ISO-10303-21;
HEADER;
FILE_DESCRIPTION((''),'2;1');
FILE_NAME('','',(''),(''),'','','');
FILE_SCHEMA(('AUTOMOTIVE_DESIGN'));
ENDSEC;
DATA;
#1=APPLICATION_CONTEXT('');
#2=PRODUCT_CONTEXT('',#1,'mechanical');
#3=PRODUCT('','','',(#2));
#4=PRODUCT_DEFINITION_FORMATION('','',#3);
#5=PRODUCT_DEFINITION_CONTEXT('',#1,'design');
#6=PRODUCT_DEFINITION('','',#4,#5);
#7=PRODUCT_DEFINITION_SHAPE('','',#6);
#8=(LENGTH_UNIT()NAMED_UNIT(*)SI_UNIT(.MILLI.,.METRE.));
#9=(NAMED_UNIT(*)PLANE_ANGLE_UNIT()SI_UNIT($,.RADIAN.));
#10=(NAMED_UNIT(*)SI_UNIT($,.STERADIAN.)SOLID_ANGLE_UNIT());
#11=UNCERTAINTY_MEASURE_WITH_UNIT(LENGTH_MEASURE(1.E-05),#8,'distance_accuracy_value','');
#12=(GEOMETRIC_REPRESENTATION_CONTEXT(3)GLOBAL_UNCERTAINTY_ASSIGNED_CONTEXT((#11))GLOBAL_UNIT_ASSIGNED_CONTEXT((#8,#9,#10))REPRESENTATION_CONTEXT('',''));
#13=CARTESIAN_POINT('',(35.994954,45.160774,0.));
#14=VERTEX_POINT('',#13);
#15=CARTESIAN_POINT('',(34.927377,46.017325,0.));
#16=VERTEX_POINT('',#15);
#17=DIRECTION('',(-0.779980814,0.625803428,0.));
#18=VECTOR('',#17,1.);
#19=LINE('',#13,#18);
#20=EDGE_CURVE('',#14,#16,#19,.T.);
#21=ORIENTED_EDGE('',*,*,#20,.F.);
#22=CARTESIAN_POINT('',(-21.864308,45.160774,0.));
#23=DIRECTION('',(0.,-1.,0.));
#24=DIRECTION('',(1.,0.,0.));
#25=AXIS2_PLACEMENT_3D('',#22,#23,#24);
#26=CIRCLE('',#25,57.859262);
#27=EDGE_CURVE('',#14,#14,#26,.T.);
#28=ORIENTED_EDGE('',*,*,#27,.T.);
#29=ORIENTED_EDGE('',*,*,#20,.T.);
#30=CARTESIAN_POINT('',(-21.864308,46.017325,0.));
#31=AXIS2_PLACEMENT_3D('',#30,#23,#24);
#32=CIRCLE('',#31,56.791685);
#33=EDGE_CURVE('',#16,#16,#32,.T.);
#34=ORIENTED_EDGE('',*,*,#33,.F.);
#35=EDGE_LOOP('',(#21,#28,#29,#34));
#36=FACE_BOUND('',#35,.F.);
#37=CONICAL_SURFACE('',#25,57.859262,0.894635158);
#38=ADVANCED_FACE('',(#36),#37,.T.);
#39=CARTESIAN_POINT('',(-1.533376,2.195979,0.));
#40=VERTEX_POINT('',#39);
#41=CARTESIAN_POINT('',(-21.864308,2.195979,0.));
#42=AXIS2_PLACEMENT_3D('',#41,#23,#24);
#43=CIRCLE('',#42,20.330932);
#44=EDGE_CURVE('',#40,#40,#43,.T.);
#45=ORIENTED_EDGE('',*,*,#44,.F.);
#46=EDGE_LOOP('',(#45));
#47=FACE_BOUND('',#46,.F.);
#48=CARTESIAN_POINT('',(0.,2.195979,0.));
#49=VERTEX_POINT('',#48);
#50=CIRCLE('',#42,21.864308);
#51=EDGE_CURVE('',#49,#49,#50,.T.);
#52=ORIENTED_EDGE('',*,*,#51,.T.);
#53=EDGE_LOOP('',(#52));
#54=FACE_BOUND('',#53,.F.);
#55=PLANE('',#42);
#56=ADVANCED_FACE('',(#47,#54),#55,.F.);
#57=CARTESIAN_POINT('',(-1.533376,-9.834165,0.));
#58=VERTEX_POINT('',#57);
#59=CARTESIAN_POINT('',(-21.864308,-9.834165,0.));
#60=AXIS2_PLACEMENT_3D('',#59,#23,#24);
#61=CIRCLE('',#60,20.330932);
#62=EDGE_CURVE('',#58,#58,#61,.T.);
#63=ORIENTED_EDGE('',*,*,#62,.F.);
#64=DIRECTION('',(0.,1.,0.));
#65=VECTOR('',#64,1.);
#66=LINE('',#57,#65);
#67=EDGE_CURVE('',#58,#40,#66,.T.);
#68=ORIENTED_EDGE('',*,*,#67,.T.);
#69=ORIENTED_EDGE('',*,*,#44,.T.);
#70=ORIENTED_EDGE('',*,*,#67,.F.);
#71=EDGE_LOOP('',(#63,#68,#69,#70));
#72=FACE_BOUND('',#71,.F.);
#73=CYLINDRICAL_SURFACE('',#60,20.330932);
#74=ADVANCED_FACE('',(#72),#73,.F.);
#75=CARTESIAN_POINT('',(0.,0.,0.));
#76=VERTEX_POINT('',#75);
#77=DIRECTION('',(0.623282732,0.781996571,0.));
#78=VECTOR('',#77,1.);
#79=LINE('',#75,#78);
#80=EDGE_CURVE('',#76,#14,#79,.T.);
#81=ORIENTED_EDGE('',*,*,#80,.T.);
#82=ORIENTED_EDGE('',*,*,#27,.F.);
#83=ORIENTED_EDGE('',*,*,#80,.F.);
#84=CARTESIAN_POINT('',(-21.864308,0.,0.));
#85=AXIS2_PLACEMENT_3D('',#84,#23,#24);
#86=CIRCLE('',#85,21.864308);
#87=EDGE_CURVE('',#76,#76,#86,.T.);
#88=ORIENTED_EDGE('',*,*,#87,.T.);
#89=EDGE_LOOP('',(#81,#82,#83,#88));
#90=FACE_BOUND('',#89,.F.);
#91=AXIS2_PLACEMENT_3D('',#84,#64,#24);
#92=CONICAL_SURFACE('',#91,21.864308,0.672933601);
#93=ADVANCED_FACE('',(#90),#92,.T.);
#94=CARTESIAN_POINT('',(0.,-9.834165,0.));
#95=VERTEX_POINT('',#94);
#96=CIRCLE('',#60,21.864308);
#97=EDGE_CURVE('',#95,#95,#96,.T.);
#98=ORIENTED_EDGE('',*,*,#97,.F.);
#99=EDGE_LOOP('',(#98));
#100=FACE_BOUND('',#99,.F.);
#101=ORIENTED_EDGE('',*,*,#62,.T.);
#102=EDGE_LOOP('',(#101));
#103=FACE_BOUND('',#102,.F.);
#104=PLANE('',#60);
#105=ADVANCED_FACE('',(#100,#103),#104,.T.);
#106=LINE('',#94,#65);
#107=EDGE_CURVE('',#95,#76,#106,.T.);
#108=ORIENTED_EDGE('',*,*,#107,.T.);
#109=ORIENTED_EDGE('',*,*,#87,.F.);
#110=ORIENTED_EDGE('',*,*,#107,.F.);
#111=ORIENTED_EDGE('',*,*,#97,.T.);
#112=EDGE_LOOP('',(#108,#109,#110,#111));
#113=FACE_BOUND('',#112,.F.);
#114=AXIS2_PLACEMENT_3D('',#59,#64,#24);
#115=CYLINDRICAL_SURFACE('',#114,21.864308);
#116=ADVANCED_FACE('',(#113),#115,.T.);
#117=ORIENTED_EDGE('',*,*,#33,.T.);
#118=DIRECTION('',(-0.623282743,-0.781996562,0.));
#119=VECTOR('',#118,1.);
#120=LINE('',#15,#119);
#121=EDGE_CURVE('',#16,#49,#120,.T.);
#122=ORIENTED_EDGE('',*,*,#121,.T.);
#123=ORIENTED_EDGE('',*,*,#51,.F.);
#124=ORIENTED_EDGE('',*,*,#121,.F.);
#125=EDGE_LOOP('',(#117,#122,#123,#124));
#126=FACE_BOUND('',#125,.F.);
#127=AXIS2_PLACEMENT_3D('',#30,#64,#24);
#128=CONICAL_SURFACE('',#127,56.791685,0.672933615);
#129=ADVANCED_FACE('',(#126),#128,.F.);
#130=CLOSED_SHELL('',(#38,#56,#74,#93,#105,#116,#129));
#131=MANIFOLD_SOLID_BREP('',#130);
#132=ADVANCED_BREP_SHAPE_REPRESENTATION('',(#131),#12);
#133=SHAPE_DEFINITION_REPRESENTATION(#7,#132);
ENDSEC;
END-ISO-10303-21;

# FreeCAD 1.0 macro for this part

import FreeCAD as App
import Part
import Sketcher
from FreeCAD import Vector

doc = App.newDocument("Part")
params = doc.addObject("Spreadsheet::Sheet", "Params")
for row, (alias, value) in enumerate([
    ("revolution_angle", "360 deg"),
    ("pocket1_length", "3 in"),
], start=1):
    params.set(f"A{row}", alias)
    params.set(f"B{row}", "=" + value)
    params.setAlias(f"B{row}", alias)

body = doc.addObject("PartDesign::Body", "Body")

# Sketch on XY plane
sketch1 = body.newObject("Sketcher::SketchObject", "Sketch")
sketch1.AttachmentSupport = (doc.getObject("XY_Plane"), [""])
sketch1.MapMode = "FlatFace"
sketch1.addGeometry(Part.LineSegment(Vector(34.9, 46, 0), Vector(0, 2.2, 0)), False)
sketch1.addGeometry(Part.LineSegment(Vector(0, 2.2, 0), Vector(-21.9, 2.2, 0)), False)
sketch1.addGeometry(Part.LineSegment(Vector(-21.9, 2.2, 0), Vector(-21.9, -9.8, 0)), False)
sketch1.addGeometry(Part.LineSegment(Vector(-21.9, -9.8, 0), Vector(0, -9.8, 0)), False)
sketch1.addGeometry(Part.LineSegment(Vector(0, -9.8, 0), Vector(0, 0, 0)), False)
sketch1.addGeometry(Part.LineSegment(Vector(0, 0, 0), Vector(36, 45.2, 0)), False)
sketch1.addGeometry(Part.LineSegment(Vector(36, 45.2, 0), Vector(34.9, 46, 0)), False)
sketch1.addGeometry(Part.LineSegment(Vector(-21.9, 46, 0), Vector(-21.9, -9.8, 0)), True)  # axis
sketch1.addConstraint(Sketcher.Constraint("Coincident", 0, 2, 1, 1))
sketch1.addConstraint(Sketcher.Constraint("Coincident", 1, 2, 2, 1))
sketch1.addConstraint(Sketcher.Constraint("Coincident", 2, 2, 3, 1))
sketch1.addConstraint(Sketcher.Constraint("Coincident", 3, 2, 4, 1))
sketch1.addConstraint(Sketcher.Constraint("Coincident", 4, 2, 5, 1))
sketch1.addConstraint(Sketcher.Constraint("Coincident", 5, 2, 6, 1))
sketch1.addConstraint(Sketcher.Constraint("Coincident", 6, 2, 0, 1))
sketch1.addConstraint(Sketcher.Constraint("Horizontal", 1))
sketch1.addConstraint(Sketcher.Constraint("Vertical", 2))
sketch1.addConstraint(Sketcher.Constraint("Horizontal", 3))
sketch1.addConstraint(Sketcher.Constraint("Vertical", 4))
sketch1.addConstraint(Sketcher.Constraint("Vertical", 7))
sketch1.addConstraint(Sketcher.Constraint("Coincident", 4, 2, -1, 1))
sketch1.addConstraint(Sketcher.Constraint("Coincident", 7, 2, 2, 2))
sketch1.addConstraint(Sketcher.Constraint("PointOnObject", 0, 2, -2))
sketch1.addConstraint(Sketcher.Constraint("Parallel", 0, 5))
sketch1.addConstraint(Sketcher.Constraint("Horizontal", 6, 2, 7, 1))
sketch1.addConstraint(Sketcher.Constraint("DistanceX", 1, 2, 1, 1, 21.864308))
sketch1.addConstraint(Sketcher.Constraint("DistanceY", 7, 2, 7, 1, 55.85149))
sketch1.addConstraint(Sketcher.Constraint("DistanceY", 2, 2, 2, 1, 12.030144))
sketch1.addConstraint(Sketcher.Constraint("DistanceY", 4, 1, 4, 2, 9.834165))
sketch1.addConstraint(Sketcher.Constraint("DistanceY", 3, 2, 5, 2, 54.994939))
sketch1.addConstraint(Sketcher.Constraint("Distance", 0, 56.037773))
revolution = body.newObject("PartDesign::Revolution", "Revolution")
revolution.Profile = sketch1
revolution.ReferenceAxis = (sketch1, ["Axis0"])
revolution.setExpression("Angle", "Params.revolution_angle")

# Sketch on XZ plane
sketch2 = body.newObject("Sketcher::SketchObject", "Sketch001")
sketch2.AttachmentSupport = (doc.getObject("XZ_Plane"), [""])
sketch2.MapMode = "FlatFace"
sketch2.AttachmentOffset = App.Placement(Vector(0, 0, 9.834165), App.Rotation())
sketch2.addGeometry(Part.Circle(Vector(-22, 0, 0), Vector(0, 0, 1), 20), False)
sketch2.addConstraint(Sketcher.Constraint("PointOnObject", 0, 3, -1))
sketch2.addConstraint(Sketcher.Constraint("Diameter", 0, 40.661864))
sketch2.addConstraint(Sketcher.Constraint("DistanceX", 0, 3, -1, 1, 21.864308))
pocket1 = body.newObject("PartDesign::Pocket", "Pocket")
pocket1.Profile = sketch2
pocket1.setExpression("Length", "Params.pocket1_length")

doc.recompute()
